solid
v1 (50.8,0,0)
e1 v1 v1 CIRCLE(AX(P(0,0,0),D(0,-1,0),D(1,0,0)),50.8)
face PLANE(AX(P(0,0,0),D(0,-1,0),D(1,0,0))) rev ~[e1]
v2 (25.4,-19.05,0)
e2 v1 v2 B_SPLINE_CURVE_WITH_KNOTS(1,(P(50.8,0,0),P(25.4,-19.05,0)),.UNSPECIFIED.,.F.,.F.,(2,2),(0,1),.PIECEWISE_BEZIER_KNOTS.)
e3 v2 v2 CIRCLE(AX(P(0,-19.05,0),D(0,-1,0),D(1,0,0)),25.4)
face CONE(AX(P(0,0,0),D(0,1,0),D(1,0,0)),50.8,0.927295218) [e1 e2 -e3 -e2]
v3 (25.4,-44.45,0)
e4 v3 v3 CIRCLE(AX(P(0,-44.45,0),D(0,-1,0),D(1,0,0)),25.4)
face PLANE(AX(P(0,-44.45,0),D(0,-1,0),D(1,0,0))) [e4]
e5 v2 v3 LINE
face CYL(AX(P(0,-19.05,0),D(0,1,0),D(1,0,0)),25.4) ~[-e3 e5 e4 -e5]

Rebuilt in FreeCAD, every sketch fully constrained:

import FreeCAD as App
import Part
import Sketcher
from FreeCAD import Vector
Q = App.Units.Quantity

doc = App.newDocument("Part")
params = doc.addObject("Spreadsheet::Sheet", "Params")
for row, (alias, value) in enumerate([
    ("sketch1_diameter", "4 in"),
    ("sketch2_diameter", "2 in"),
    ("sketch3_diameter", "2 in"),
    ("pad1_length", "1 in"),
], start=1):
    params.set(f"A{row}", alias)
    params.set(f"B{row}", "=" + value)
    params.setAlias(f"B{row}", alias)

body = doc.addObject("PartDesign::Body", "Body")

sketch1 = body.newObject("Sketcher::SketchObject", "Sketch")
sketch1.AttachmentSupport = (doc.getObject("XZ_Plane"), [""])
sketch1.MapMode = "FlatFace"
sketch1.addGeometry(Part.Circle(Vector(0, 0, 0), Vector(0, 0, 1), 51), False)
sketch1.addConstraint(Sketcher.Constraint("Coincident", 0, 3, -1, 1))
sketch1.addConstraint(Sketcher.Constraint("Diameter", 0, Q("4 in")))
sketch1.setExpression("Constraints[1]", "Params.sketch1_diameter")

sketch2 = body.newObject("Sketcher::SketchObject", "Sketch001")
sketch2.AttachmentSupport = (doc.getObject("XZ_Plane"), [""])
sketch2.MapMode = "FlatFace"
sketch2.AttachmentOffset = App.Placement(Vector(0, 0, 0.75 * 25.4), App.Rotation())
sketch2.addGeometry(Part.Circle(Vector(0, 0, 0), Vector(0, 0, 1), 25), False)
sketch2.addConstraint(Sketcher.Constraint("Coincident", 0, 3, -1, 1))
sketch2.addConstraint(Sketcher.Constraint("Diameter", 0, Q("2 in")))
sketch2.setExpression("Constraints[1]", "Params.sketch2_diameter")

additiveloft = body.newObject("PartDesign::AdditiveLoft", "AdditiveLoft")
additiveloft.Profile = sketch1
additiveloft.Sections = [sketch2]

sketch3 = body.newObject("Sketcher::SketchObject", "Sketch002")
sketch3.AttachmentSupport = (doc.getObject("XZ_Plane"), [""])
sketch3.MapMode = "FlatFace"
sketch3.AttachmentOffset = App.Placement(Vector(0, 0, 0.75 * 25.4), App.Rotation())
sketch3.addGeometry(Part.Circle(Vector(0, 0, 0), Vector(0, 0, 1), 25), False)
sketch3.addConstraint(Sketcher.Constraint("Coincident", 0, 3, -1, 1))
sketch3.addConstraint(Sketcher.Constraint("Diameter", 0, Q("2 in")))
sketch3.setExpression("Constraints[1]", "Params.sketch3_diameter")
pad1 = body.newObject("PartDesign::Pad", "Pad")
pad1.Profile = sketch3
pad1.setExpression("Length", "Params.pad1_length")

doc.recompute()
